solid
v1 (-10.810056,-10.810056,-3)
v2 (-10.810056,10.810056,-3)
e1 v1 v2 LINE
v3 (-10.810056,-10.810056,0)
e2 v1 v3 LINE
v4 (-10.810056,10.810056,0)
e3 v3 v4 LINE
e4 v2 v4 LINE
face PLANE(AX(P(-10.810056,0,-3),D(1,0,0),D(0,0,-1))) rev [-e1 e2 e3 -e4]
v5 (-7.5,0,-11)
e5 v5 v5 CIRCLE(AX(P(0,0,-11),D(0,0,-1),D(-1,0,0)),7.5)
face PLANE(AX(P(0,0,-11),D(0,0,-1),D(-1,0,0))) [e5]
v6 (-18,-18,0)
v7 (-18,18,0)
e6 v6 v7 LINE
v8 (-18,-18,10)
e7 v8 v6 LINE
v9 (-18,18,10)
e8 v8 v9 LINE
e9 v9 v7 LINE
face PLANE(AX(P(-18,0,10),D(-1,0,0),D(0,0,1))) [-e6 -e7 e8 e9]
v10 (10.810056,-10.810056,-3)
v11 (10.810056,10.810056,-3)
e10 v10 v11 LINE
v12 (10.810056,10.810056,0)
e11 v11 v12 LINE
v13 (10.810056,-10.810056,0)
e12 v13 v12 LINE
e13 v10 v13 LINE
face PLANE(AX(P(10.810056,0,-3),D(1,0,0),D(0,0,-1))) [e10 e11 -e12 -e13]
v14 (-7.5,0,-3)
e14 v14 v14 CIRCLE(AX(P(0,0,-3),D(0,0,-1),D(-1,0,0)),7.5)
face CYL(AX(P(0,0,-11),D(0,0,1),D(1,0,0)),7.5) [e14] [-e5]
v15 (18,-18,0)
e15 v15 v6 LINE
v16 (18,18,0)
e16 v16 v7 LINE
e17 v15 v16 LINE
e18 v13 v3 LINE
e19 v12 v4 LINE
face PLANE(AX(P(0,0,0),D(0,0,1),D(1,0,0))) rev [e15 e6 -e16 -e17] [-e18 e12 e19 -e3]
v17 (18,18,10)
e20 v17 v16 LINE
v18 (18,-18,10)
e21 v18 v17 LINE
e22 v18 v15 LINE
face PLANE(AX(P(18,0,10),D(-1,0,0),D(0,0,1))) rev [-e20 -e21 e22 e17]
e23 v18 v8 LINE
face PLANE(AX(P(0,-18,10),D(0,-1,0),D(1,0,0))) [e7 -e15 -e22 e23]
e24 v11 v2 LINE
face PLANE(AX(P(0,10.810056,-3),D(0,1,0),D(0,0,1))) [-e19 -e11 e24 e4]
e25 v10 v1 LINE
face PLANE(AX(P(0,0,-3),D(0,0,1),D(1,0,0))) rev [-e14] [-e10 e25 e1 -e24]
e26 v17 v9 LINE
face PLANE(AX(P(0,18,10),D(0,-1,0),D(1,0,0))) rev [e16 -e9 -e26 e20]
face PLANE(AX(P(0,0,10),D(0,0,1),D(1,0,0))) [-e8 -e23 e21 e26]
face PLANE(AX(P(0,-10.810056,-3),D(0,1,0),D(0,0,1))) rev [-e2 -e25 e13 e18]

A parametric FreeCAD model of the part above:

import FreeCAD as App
import Part
import Sketcher

V = App.Vector

doc = App.newDocument("Part")
body = doc.addObject("PartDesign::Body", "Body")

sketch1 = body.newObject("Sketcher::SketchObject", "Sketch")
sketch1.AttachmentSupport = (doc.getObject("XY_Plane"), [""])
sketch1.MapMode = "FlatFace"
sketch1.addGeometry([
    Part.LineSegment(V(-18, 18, 0), V(-18, -18, 0)),
    Part.LineSegment(V(-18, -18, 0), V(18, -18, 0)),
    Part.LineSegment(V(18, -18, 0), V(18, 18, 0)),
    Part.LineSegment(V(18, 18, 0), V(-18, 18, 0)),
], False)
sketch1.addConstraint([
    Sketcher.Constraint("Coincident", 0, 2, 1, 1),
    Sketcher.Constraint("Coincident", 1, 2, 2, 1),
    Sketcher.Constraint("Coincident", 2, 2, 3, 1),
    Sketcher.Constraint("Coincident", 3, 2, 0, 1),
    Sketcher.Constraint("Vertical", 0),
    Sketcher.Constraint("Horizontal", 1),
    Sketcher.Constraint("Vertical", 2),
    Sketcher.Constraint("Horizontal", 3),
    Sketcher.Constraint("Symmetric", 0, 2, 2, 2, -1, 1),
    Sketcher.Constraint("Equal", 3, 0),
    Sketcher.Constraint("DistanceX", 1, 1, 1, 2, 36.0),
])
pad1 = body.newObject("PartDesign::Pad", "Pad")
pad1.Profile = sketch1
pad1.Length = 10

sketch2 = body.newObject("Sketcher::SketchObject", "Sketch001")
sketch2.AttachmentSupport = (doc.getObject("XY_Plane"), [""])
sketch2.MapMode = "FlatFace"
sketch2.addGeometry([
    Part.LineSegment(V(-11, 11, 0), V(-11, -11, 0)),
    Part.LineSegment(V(-11, -11, 0), V(11, -11, 0)),
    Part.LineSegment(V(11, -11, 0), V(11, 11, 0)),
    Part.LineSegment(V(11, 11, 0), V(-11, 11, 0)),
], False)
sketch2.addConstraint([
    Sketcher.Constraint("Coincident", 0, 2, 1, 1),
    Sketcher.Constraint("Coincident", 1, 2, 2, 1),
    Sketcher.Constraint("Coincident", 2, 2, 3, 1),
    Sketcher.Constraint("Coincident", 3, 2, 0, 1),
    Sketcher.Constraint("Vertical", 0),
    Sketcher.Constraint("Horizontal", 1),
    Sketcher.Constraint("Vertical", 2),
    Sketcher.Constraint("Horizontal", 3),
    Sketcher.Constraint("Symmetric", 0, 2, 2, 2, -1, 1),
    Sketcher.Constraint("Equal", 3, 0),
    Sketcher.Constraint("DistanceX", 1, 1, 1, 2, 21.620112),
])
pad2 = body.newObject("PartDesign::Pad", "Pad001")
pad2.Profile = sketch2
pad2.Length = 3
pad2.Reversed = True

sketch3 = body.newObject("Sketcher::SketchObject", "Sketch002")
sketch3.AttachmentSupport = (doc.getObject("XY_Plane"), [""])
sketch3.MapMode = "FlatFace"
sketch3.AttachmentOffset = App.Placement(V(0, 0, -3), App.Rotation())
sketch3.addGeometry(Part.Circle(V(0, 0, 0), V(0, 0, 1), 8), False)
sketch3.addConstraint([
    Sketcher.Constraint("Coincident", 0, 3, -1, 1),
    Sketcher.Constraint("Diameter", 0, 15.0),
])
pad3 = body.newObject("PartDesign::Pad", "Pad002")
pad3.Profile = sketch3
pad3.Length = 8
pad3.Reversed = True

doc.recompute()
